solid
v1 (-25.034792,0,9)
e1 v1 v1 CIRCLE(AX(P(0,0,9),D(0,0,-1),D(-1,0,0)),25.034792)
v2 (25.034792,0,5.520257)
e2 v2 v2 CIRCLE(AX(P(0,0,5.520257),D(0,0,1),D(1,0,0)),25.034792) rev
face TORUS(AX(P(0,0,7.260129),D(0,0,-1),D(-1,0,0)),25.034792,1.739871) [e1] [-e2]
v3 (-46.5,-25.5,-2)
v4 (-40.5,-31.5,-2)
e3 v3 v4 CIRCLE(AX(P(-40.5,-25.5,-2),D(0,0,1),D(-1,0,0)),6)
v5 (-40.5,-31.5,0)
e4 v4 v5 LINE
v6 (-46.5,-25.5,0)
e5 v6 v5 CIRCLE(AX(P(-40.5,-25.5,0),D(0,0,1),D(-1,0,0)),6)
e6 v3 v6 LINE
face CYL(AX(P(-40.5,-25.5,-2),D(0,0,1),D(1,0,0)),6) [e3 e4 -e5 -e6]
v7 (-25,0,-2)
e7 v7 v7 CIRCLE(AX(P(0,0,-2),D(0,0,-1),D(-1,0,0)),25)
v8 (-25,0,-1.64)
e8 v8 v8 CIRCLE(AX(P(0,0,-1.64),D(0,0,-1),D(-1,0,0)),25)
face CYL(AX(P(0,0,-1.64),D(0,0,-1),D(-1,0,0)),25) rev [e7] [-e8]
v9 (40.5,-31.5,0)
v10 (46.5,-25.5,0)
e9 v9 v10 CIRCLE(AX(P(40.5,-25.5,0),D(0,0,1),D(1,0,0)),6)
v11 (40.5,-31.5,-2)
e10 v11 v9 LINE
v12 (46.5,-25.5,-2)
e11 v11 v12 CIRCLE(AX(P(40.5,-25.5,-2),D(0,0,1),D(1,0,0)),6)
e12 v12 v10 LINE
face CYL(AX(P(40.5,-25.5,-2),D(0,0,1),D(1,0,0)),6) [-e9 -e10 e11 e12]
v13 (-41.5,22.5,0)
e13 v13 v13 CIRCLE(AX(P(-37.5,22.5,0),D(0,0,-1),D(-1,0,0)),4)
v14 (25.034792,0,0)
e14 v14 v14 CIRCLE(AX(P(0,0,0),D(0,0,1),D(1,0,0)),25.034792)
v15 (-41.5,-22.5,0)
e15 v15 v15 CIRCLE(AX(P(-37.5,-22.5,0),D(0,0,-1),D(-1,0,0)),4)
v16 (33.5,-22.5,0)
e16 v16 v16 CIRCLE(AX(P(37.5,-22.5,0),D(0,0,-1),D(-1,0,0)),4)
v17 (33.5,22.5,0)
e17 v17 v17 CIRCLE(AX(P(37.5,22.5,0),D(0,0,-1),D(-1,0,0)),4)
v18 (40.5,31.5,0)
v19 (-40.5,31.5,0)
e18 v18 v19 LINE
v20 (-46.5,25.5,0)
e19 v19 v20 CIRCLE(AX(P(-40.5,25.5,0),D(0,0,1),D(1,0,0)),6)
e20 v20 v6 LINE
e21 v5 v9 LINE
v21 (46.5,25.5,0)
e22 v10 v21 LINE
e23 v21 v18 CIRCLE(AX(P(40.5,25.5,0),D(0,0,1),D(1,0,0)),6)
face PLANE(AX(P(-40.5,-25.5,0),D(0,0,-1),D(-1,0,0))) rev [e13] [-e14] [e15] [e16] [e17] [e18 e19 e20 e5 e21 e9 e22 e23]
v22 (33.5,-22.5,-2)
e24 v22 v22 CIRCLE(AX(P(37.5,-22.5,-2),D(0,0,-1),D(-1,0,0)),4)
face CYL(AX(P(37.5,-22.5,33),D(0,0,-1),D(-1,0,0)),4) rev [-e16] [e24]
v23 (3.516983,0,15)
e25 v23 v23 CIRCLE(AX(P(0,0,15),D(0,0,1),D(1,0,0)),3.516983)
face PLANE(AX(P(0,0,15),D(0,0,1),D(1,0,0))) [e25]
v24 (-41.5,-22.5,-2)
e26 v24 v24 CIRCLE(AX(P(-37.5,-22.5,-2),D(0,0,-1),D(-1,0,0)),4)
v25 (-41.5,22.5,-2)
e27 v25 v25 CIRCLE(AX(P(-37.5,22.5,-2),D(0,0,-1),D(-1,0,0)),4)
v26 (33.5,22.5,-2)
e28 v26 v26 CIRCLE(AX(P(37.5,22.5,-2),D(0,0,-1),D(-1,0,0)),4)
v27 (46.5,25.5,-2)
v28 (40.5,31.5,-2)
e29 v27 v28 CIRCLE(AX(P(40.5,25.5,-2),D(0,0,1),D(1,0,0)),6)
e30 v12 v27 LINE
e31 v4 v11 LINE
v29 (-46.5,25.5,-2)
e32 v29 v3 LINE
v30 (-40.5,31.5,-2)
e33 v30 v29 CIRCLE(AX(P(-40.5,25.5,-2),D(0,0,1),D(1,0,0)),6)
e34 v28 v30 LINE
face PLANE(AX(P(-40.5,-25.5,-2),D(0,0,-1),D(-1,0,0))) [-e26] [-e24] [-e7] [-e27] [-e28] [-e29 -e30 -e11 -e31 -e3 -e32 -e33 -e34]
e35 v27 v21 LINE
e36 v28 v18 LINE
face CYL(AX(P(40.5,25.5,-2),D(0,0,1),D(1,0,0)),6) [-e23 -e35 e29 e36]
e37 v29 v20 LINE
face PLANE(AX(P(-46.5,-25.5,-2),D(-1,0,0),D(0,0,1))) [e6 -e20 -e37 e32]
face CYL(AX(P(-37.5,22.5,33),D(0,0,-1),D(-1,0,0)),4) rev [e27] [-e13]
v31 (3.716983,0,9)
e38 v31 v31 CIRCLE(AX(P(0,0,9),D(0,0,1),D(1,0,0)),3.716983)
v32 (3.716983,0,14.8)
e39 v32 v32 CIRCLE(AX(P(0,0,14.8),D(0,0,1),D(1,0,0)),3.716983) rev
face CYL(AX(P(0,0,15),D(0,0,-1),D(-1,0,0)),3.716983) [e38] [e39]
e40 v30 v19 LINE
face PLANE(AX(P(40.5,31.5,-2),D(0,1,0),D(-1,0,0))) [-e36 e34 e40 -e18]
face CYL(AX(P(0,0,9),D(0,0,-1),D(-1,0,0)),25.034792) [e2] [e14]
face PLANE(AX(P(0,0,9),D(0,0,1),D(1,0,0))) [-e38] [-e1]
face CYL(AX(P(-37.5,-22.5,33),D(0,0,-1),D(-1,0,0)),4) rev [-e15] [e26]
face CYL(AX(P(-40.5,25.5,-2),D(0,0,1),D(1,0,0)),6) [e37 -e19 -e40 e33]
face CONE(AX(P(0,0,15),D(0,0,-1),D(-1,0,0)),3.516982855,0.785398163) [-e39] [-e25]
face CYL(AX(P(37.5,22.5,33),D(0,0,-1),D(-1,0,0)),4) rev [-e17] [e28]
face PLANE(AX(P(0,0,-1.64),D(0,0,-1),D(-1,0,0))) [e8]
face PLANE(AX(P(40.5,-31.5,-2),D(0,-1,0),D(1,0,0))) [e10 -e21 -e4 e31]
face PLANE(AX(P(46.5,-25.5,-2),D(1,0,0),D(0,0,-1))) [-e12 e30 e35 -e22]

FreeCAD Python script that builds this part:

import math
import FreeCAD as App
import Part
import Sketcher
from FreeCAD import Vector
Q = App.Units.Quantity


def edges_at(feature, points):
    """Names of the edges that pass closest to the given points."""
    edges = feature.Shape.Edges
    near = lambda p: min(range(len(edges)), key=lambda i: edges[i].distToShape(Part.Vertex(*p))[0])
    return sorted({f"Edge{near(p) + 1}" for p in points})

doc = App.newDocument("Part")
body = doc.addObject("PartDesign::Body", "Body")

# Sketch on XY plane
sketch1 = body.newObject("Sketcher::SketchObject", "Sketch")
sketch1.AttachmentSupport = (doc.getObject("XY_Plane"), [""])
sketch1.MapMode = "FlatFace"
sketch1.addGeometry([
    Part.LineSegment(Vector(-40.5, -31.5, 0), Vector(40.5, -31.5, 0)),  # 0
    Part.ArcOfCircle(Part.Circle(Vector(40.5, -25.5, 0), Vector(0, 0, 1), 6), math.radians(-90), math.radians(0)),  # 1
    Part.LineSegment(Vector(46.5, -25.5, 0), Vector(46.5, 25.5, 0)),  # 2
    Part.ArcOfCircle(Part.Circle(Vector(40.5, 25.5, 0), Vector(0, 0, 1), 6), math.radians(0), math.radians(90)),  # 3
    Part.LineSegment(Vector(40.5, 31.5, 0), Vector(-40.5, 31.5, 0)),  # 4
    Part.ArcOfCircle(Part.Circle(Vector(-40.5, 25.5, 0), Vector(0, 0, 1), 6), math.radians(90), math.radians(180)),  # 5
    Part.LineSegment(Vector(-46.5, 25.5, 0), Vector(-46.5, -25.5, 0)),  # 6
    Part.ArcOfCircle(Part.Circle(Vector(-40.5, -25.5, 0), Vector(0, 0, 1), 6), math.radians(180), math.radians(270)),  # 7
    Part.LineSegment(Vector(31.8, -22.5, 0), Vector(37.5, -16.8, 0)),  # 8
    Part.ArcOfCircle(Part.Circle(Vector(40.3, -19.7, 0), Vector(0, 0, 1), 4), math.radians(-45), math.radians(135)),  # 9
    Part.LineSegment(Vector(43.2, -22.5, 0), Vector(37.5, -28.2, 0)),  # 10
    Part.ArcOfCircle(Part.Circle(Vector(34.7, -25.3, 0), Vector(0, 0, 1), 4), math.radians(135), math.radians(315)),  # 11
    Part.LineSegment(Vector(-37.5, -28.2, 0), Vector(-43.2, -22.5, 0)),  # 12
    Part.ArcOfCircle(Part.Circle(Vector(-40.3, -19.7, 0), Vector(0, 0, 1), 4), math.radians(45), math.radians(225)),  # 13
    Part.LineSegment(Vector(-37.5, -16.8, 0), Vector(-31.8, -22.5, 0)),  # 14
    Part.ArcOfCircle(Part.Circle(Vector(-34.7, -25.3, 0), Vector(0, 0, 1), 4), math.radians(-135), math.radians(45)),  # 15
    Part.LineSegment(Vector(37.5, 28.2, 0), Vector(43.2, 22.5, 0)),  # 16
    Part.ArcOfCircle(Part.Circle(Vector(40.3, 19.7, 0), Vector(0, 0, 1), 4), math.radians(-135), math.radians(45)),  # 17
    Part.LineSegment(Vector(37.5, 16.8, 0), Vector(31.8, 22.5, 0)),  # 18
    Part.ArcOfCircle(Part.Circle(Vector(34.7, 25.3, 0), Vector(0, 0, 1), 4), math.radians(45), math.radians(225)),  # 19
    Part.LineSegment(Vector(-43.2, 22.5, 0), Vector(-37.5, 28.2, 0)),  # 20
    Part.ArcOfCircle(Part.Circle(Vector(-34.7, 25.3, 0), Vector(0, 0, 1), 4), math.radians(-45), math.radians(135)),  # 21
    Part.LineSegment(Vector(-31.8, 22.5, 0), Vector(-37.5, 16.8, 0)),  # 22
    Part.ArcOfCircle(Part.Circle(Vector(-40.3, 19.7, 0), Vector(0, 0, 1), 4), math.radians(135), math.radians(315)),  # 23
], False)
sketch1.addConstraint([
    Sketcher.Constraint("Tangent", 0, 2, 1, 1),
    Sketcher.Constraint("Tangent", 1, 2, 2, 1),
    Sketcher.Constraint("Tangent", 2, 2, 3, 1),
    Sketcher.Constraint("Tangent", 3, 2, 4, 1),
    Sketcher.Constraint("Tangent", 4, 2, 5, 1),
    Sketcher.Constraint("Tangent", 5, 2, 6, 1),
    Sketcher.Constraint("Tangent", 6, 2, 7, 1),
    Sketcher.Constraint("Tangent", 7, 2, 0, 1),
    Sketcher.Constraint("Tangent", 8, 2, 9, 2),
    Sketcher.Constraint("Tangent", 9, 1, 10, 1),
    Sketcher.Constraint("Tangent", 10, 2, 11, 2),
    Sketcher.Constraint("Tangent", 11, 1, 8, 1),
    Sketcher.Constraint("Tangent", 12, 2, 13, 2),
    Sketcher.Constraint("Tangent", 13, 1, 14, 1),
    Sketcher.Constraint("Tangent", 14, 2, 15, 2),
    Sketcher.Constraint("Tangent", 15, 1, 12, 1),
    Sketcher.Constraint("Tangent", 16, 2, 17, 2),
    Sketcher.Constraint("Tangent", 17, 1, 18, 1),
    Sketcher.Constraint("Tangent", 18, 2, 19, 2),
    Sketcher.Constraint("Tangent", 19, 1, 16, 1),
    Sketcher.Constraint("Tangent", 20, 2, 21, 2),
    Sketcher.Constraint("Tangent", 21, 1, 22, 1),
    Sketcher.Constraint("Tangent", 22, 2, 23, 2),
    Sketcher.Constraint("Tangent", 23, 1, 20, 1),
    Sketcher.Constraint("Horizontal", 0),
    Sketcher.Constraint("Vertical", 2),
    Sketcher.Constraint("Horizontal", 4),
    Sketcher.Constraint("Vertical", 6),
    Sketcher.Constraint("Equal", 1, 3),
    Sketcher.Constraint("Equal", 3, 5),
    Sketcher.Constraint("Equal", 5, 7),
    Sketcher.Constraint("Equal", 9, 11),
    Sketcher.Constraint("Equal", 11, 13),
    Sketcher.Constraint("Equal", 13, 15),
    Sketcher.Constraint("Equal", 15, 17),
    Sketcher.Constraint("Equal", 17, 19),
    Sketcher.Constraint("Equal", 19, 21),
    Sketcher.Constraint("Equal", 21, 23),
    Sketcher.Constraint("Symmetric", 1, 3, 5, 3, -1, 1),
    Sketcher.Constraint("Symmetric", 13, 3, 17, 3, -1, 1),
    Sketcher.Constraint("Symmetric", 15, 3, 19, 3, -1, 1),
    Sketcher.Constraint("Symmetric", 11, 3, 21, 3, -1, 1),
    Sketcher.Constraint("Symmetric", 9, 3, 23, 3, -1, 1),
    Sketcher.Constraint("Symmetric", 9, 3, 13, 3, -2),
    Sketcher.Constraint("Symmetric", 11, 3, 15, 3, -2),
    Sketcher.Constraint("Perpendicular", 10, 12),
    Sketcher.Constraint("Horizontal", 9, 1, 11, 1),
    Sketcher.Constraint("Radius", 1, Q("6 mm")),
    Sketcher.Constraint("Radius", 9, Q("4 mm")),
    Sketcher.Constraint("DistanceX", 0, 1, 0, 2, Q("81 mm")),
    Sketcher.Constraint("DistanceY", 2, 1, 2, 2, Q("51 mm")),
    Sketcher.Constraint("DistanceX", 13, 3, 11, 3, Q("75 mm")),
    Sketcher.Constraint("DistanceY", 11, 3, 17, 3, Q("45 mm")),
])
pad1 = body.newObject("PartDesign::Pad", "Pad")
pad1.Profile = sketch1
pad1.Length = 2
pad1.Reversed = True

# Sketch on XY plane
sketch2 = body.newObject("Sketcher::SketchObject", "Sketch001")
sketch2.AttachmentSupport = (doc.getObject("XY_Plane"), [""])
sketch2.MapMode = "FlatFace"
sketch2.addGeometry(Part.Circle(Vector(0, 0, 0), Vector(0, 0, 1), 25), False)
sketch2.addConstraint([
    Sketcher.Constraint("Coincident", 0, 3, -1, 1),
    Sketcher.Constraint("Diameter", 0, Q("50.069583 mm")),
])
pad2 = body.newObject("PartDesign::Pad", "Pad001")
pad2.Profile = sketch2
pad2.Length = 9

# Sketch on XZ plane
sketch3 = body.newObject("Sketcher::SketchObject", "Sketch002")
sketch3.AttachmentSupport = (doc.getObject("XZ_Plane"), [""])
sketch3.MapMode = "FlatFace"
sketch3.addGeometry(Part.Circle(Vector(-25, 7.3, 0), Vector(0, 0, 1), 1.7), False)
sketch3.addConstraint([
    Sketcher.Constraint("Diameter", 0, Q("3.479743 mm")),
    Sketcher.Constraint("DistanceX", 0, 3, -1, 1, Q("25.034792 mm")),
    Sketcher.Constraint("DistanceY", -1, 1, 0, 3, Q("7.260129 mm")),
])
revolution = body.newObject("PartDesign::Revolution", "Revolution")
revolution.Profile = sketch3
revolution.ReferenceAxis = (sketch3, ["V_Axis"])
revolution.Angle = 360

# Sketch on XY plane
sketch4 = body.newObject("Sketcher::SketchObject", "Sketch003")
sketch4.AttachmentSupport = (doc.getObject("XY_Plane"), [""])
sketch4.MapMode = "FlatFace"
sketch4.AttachmentOffset = App.Placement(Vector(0, 0, 9), App.Rotation())
sketch4.addGeometry(Part.Circle(Vector(0, 0, 0), Vector(0, 0, 1), 3.7), False)
sketch4.addConstraint([
    Sketcher.Constraint("Coincident", 0, 3, -1, 1),
    Sketcher.Constraint("Diameter", 0, Q("7.433966 mm")),
])
pad3 = body.newObject("PartDesign::Pad", "Pad002")
pad3.Profile = sketch4
pad3.Length = 6
doc.recompute()

chamfer = body.newObject("PartDesign::Chamfer", "Chamfer")
chamfer.Base = (pad3, edges_at(pad3, [(-3.717, 0, 15)]))
chamfer.Size = 0.2

# Sketch on XY plane
sketch5 = body.newObject("Sketcher::SketchObject", "Sketch004")
sketch5.AttachmentSupport = (doc.getObject("XY_Plane"), [""])
sketch5.MapMode = "FlatFace"
sketch5.AttachmentOffset = App.Placement(Vector(0, 0, -2), App.Rotation())
sketch5.addGeometry(Part.Circle(Vector(0, 0, 0), Vector(0, 0, 1), 25), False)
sketch5.addConstraint([
    Sketcher.Constraint("Coincident", 0, 3, -1, 1),
    Sketcher.Constraint("Diameter", 0, Q("50 mm")),
])
pocket1 = body.newObject("PartDesign::Pocket", "Pocket")
pocket1.Profile = sketch5
pocket1.Length = 0.36
pocket1.Reversed = True

# Sketch on XY plane
sketch6 = body.newObject("Sketcher::SketchObject", "Sketch005")
sketch6.AttachmentSupport = (doc.getObject("XY_Plane"), [""])
sketch6.MapMode = "FlatFace"
sketch6.AttachmentOffset = App.Placement(Vector(0, 0, -2), App.Rotation())
sketch6.addGeometry([
    Part.LineSegment(Vector(-43.2, 22.5, 0), Vector(-37.5, 28.2, 0)),  # 0
    Part.ArcOfCircle(Part.Circle(Vector(-34.7, 25.3, 0), Vector(0, 0, 1), 4), math.radians(-45), math.radians(135)),  # 1
    Part.LineSegment(Vector(-31.8, 22.5, 0), Vector(-37.5, 16.8, 0)),  # 2
    Part.ArcOfCircle(Part.Circle(Vector(-40.3, 19.7, 0), Vector(0, 0, 1), 4), math.radians(135), math.radians(315)),  # 3
    Part.LineSegment(Vector(-37.5, -28.2, 0), Vector(-43.2, -22.5, 0)),  # 4
    Part.ArcOfCircle(Part.Circle(Vector(-40.3, -19.7, 0), Vector(0, 0, 1), 4), math.radians(45), math.radians(225)),  # 5
    Part.LineSegment(Vector(-37.5, -16.8, 0), Vector(-31.8, -22.5, 0)),  # 6
    Part.ArcOfCircle(Part.Circle(Vector(-34.7, -25.3, 0), Vector(0, 0, 1), 4), math.radians(-135), math.radians(45)),  # 7
    Part.LineSegment(Vector(43.2, -22.5, 0), Vector(37.5, -28.2, 0)),  # 8
    Part.ArcOfCircle(Part.Circle(Vector(34.7, -25.3, 0), Vector(0, 0, 1), 4), math.radians(135), math.radians(315)),  # 9
    Part.LineSegment(Vector(31.8, -22.5, 0), Vector(37.5, -16.8, 0)),  # 10
    Part.ArcOfCircle(Part.Circle(Vector(40.3, -19.7, 0), Vector(0, 0, 1), 4), math.radians(-45), math.radians(135)),  # 11
    Part.LineSegment(Vector(37.5, 28.2, 0), Vector(43.2, 22.5, 0)),  # 12
    Part.ArcOfCircle(Part.Circle(Vector(40.3, 19.7, 0), Vector(0, 0, 1), 4), math.radians(-135), math.radians(45)),  # 13
    Part.LineSegment(Vector(37.5, 16.8, 0), Vector(31.8, 22.5, 0)),  # 14
    Part.ArcOfCircle(Part.Circle(Vector(34.7, 25.3, 0), Vector(0, 0, 1), 4), math.radians(45), math.radians(225)),  # 15
], False)
sketch6.addConstraint([
    Sketcher.Constraint("Tangent", 0, 2, 1, 2),
    Sketcher.Constraint("Tangent", 1, 1, 2, 1),
    Sketcher.Constraint("Tangent", 2, 2, 3, 2),
    Sketcher.Constraint("Tangent", 3, 1, 0, 1),
    Sketcher.Constraint("Tangent", 4, 2, 5, 2),
    Sketcher.Constraint("Tangent", 5, 1, 6, 1),
    Sketcher.Constraint("Tangent", 6, 2, 7, 2),
    Sketcher.Constraint("Tangent", 7, 1, 4, 1),
    Sketcher.Constraint("Tangent", 8, 2, 9, 2),
    Sketcher.Constraint("Tangent", 9, 1, 10, 1),
    Sketcher.Constraint("Tangent", 10, 2, 11, 2),
    Sketcher.Constraint("Tangent", 11, 1, 8, 1),
    Sketcher.Constraint("Tangent", 12, 2, 13, 2),
    Sketcher.Constraint("Tangent", 13, 1, 14, 1),
    Sketcher.Constraint("Tangent", 14, 2, 15, 2),
    Sketcher.Constraint("Tangent", 15, 1, 12, 1),
    Sketcher.Constraint("Equal", 1, 3),
    Sketcher.Constraint("Equal", 3, 5),
    Sketcher.Constraint("Equal", 5, 7),
    Sketcher.Constraint("Equal", 7, 9),
    Sketcher.Constraint("Equal", 9, 11),
    Sketcher.Constraint("Equal", 11, 13),
    Sketcher.Constraint("Equal", 13, 15),
    Sketcher.Constraint("Symmetric", 1, 3, 9, 3, -1, 1),
    Sketcher.Constraint("Symmetric", 3, 3, 11, 3, -1, 1),
    Sketcher.Constraint("Symmetric", 5, 3, 13, 3, -1, 1),
    Sketcher.Constraint("Symmetric", 7, 3, 15, 3, -1, 1),
    Sketcher.Constraint("Symmetric", 7, 3, 9, 3, -2),
    Sketcher.Constraint("Symmetric", 5, 3, 11, 3, -2),
    Sketcher.Constraint("Perpendicular", 2, 4),
    Sketcher.Constraint("Horizontal", 1, 1, 3, 1),
    Sketcher.Constraint("Radius", 1, Q("4 mm")),
    Sketcher.Constraint("DistanceY", 5, 3, 1, 3, Q("45 mm")),
    Sketcher.Constraint("DistanceX", 5, 3, 9, 3, Q("75 mm")),
])
pad4 = body.newObject("PartDesign::Pad", "Pad003")
pad4.Profile = sketch6
pad4.Length = 2

# Sketch on XY plane
sketch7 = body.newObject("Sketcher::SketchObject", "Sketch006")
sketch7.AttachmentSupport = (doc.getObject("XY_Plane"), [""])
sketch7.MapMode = "FlatFace"
sketch7.AttachmentOffset = App.Placement(Vector(0, 0, -2), App.Rotation())
sketch7.addGeometry([
    Part.Circle(Vector(37.5, 22.5, 0), Vector(0, 0, 1), 4),
    Part.Circle(Vector(37.5, -22.5, 0), Vector(0, 0, 1), 4),
    Part.Circle(Vector(-37.5, -22.5, 0), Vector(0, 0, 1), 4),
    Part.Circle(Vector(-37.5, 22.5, 0), Vector(0, 0, 1), 4),
], False)
sketch7.addConstraint([
    Sketcher.Constraint("Equal", 0, 1),
    Sketcher.Constraint("Equal", 1, 2),
    Sketcher.Constraint("Equal", 2, 3),
    Sketcher.Constraint("Symmetric", 0, 3, 2, 3, -1, 1),
    Sketcher.Constraint("Symmetric", 1, 3, 3, 3, -1, 1),
    Sketcher.Constraint("Symmetric", 1, 3, 2, 3, -2),
    Sketcher.Constraint("Diameter", 0, Q("8 mm")),
    Sketcher.Constraint("DistanceY", 1, 3, 0, 3, Q("45 mm")),
    Sketcher.Constraint("DistanceX", 2, 3, 1, 3, Q("75 mm")),
])
pocket2 = body.newObject("PartDesign::Pocket", "Pocket001")
pocket2.Profile = sketch7
pocket2.Length = 35
pocket2.Reversed = True

doc.recompute()
